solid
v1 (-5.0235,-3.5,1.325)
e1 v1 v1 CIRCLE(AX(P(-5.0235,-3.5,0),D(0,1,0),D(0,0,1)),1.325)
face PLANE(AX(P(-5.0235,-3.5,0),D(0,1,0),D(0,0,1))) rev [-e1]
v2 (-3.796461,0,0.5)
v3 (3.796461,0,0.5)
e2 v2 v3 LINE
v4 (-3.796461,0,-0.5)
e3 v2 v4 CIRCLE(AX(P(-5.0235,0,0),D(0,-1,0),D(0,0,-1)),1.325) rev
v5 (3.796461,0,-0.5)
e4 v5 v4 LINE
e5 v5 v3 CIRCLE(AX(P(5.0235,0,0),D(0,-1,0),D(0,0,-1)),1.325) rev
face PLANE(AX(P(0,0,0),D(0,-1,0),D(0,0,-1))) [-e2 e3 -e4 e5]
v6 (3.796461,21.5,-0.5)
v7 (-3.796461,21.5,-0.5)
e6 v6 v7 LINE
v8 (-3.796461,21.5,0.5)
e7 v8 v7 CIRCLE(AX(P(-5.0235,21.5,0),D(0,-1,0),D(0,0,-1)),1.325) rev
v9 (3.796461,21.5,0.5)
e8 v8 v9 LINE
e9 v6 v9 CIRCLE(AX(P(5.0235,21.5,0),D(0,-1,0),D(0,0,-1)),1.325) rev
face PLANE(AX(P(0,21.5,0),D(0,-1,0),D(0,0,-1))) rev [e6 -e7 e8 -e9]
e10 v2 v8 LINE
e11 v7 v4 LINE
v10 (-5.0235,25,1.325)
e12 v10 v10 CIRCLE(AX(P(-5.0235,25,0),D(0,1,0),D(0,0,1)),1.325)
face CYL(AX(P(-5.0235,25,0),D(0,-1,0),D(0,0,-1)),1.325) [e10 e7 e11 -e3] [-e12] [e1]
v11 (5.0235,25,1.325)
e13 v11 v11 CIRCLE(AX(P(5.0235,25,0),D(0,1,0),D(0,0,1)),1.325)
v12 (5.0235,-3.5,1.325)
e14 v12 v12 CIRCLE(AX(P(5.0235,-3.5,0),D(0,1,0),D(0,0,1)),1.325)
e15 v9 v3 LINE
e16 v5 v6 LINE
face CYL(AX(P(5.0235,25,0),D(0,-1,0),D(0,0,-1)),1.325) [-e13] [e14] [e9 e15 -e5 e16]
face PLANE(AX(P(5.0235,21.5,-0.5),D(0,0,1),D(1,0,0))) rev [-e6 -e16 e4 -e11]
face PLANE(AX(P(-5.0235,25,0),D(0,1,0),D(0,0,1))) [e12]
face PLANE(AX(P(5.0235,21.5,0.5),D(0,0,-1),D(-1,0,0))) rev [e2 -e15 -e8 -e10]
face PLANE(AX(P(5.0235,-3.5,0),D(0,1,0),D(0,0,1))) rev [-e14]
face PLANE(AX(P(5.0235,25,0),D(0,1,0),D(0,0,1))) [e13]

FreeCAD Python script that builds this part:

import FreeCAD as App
import Part
import Sketcher

doc = App.newDocument("Part")
params = doc.addObject("Spreadsheet::Sheet", "Params")
for row, (alias, value) in enumerate([
    ("sketch1_height", "1 mm"),
    ("pad1_length", "21.5 mm"),
    ("sketch2_diameter", "2.65 mm"),
    ("pad2_length", "28.5 mm"),
], start=1):
    params.set(f"A{row}", alias)
    params.set(f"B{row}", "=" + value)
    params.setAlias(f"B{row}", alias)

body = doc.addObject("PartDesign::Body", "Body")

# Sketch on XZ plane
sketch1 = body.newObject("Sketcher::SketchObject", "Sketch")
sketch1.AttachmentSupport = (doc.getObject("XZ_Plane"), [""])
sketch1.MapMode = "FlatFace"
sketch1.addGeometry([
    Part.LineSegment(App.Vector(-5, -0.5, 0), App.Vector(-5, 0.5, 0)),
    Part.LineSegment(App.Vector(-5, 0.5, 0), App.Vector(5, 0.5, 0)),
    Part.LineSegment(App.Vector(5, 0.5, 0), App.Vector(5, -0.5, 0)),
    Part.LineSegment(App.Vector(5, -0.5, 0), App.Vector(-5, -0.5, 0)),
], False)
sketch1.addConstraint([
    Sketcher.Constraint("Coincident", 0, 2, 1, 1),
    Sketcher.Constraint("Coincident", 1, 2, 2, 1),
    Sketcher.Constraint("Coincident", 2, 2, 3, 1),
    Sketcher.Constraint("Coincident", 3, 2, 0, 1),
    Sketcher.Constraint("Vertical", 0),
    Sketcher.Constraint("Horizontal", 1),
    Sketcher.Constraint("Vertical", 2),
    Sketcher.Constraint("Horizontal", 3),
    Sketcher.Constraint("Symmetric", 0, 2, 2, 2, -1, 1),
    Sketcher.Constraint("DistanceY", 0, 1, 0, 2, 1.0),
    Sketcher.Constraint("DistanceX", 1, 1, 1, 2, 10.047),
])
sketch1.setExpression("Constraints[9]", "Params.sketch1_height")
pad1 = body.newObject("PartDesign::Pad", "Pad")
pad1.Profile = sketch1
pad1.setExpression("Length", "Params.pad1_length")
pad1.Reversed = True

# Sketch on XZ plane
sketch2 = body.newObject("Sketcher::SketchObject", "Sketch001")
sketch2.AttachmentSupport = (doc.getObject("XZ_Plane"), [""])
sketch2.MapMode = "FlatFace"
sketch2.AttachmentOffset = App.Placement(App.Vector(0, 0, -10.75), App.Rotation())
sketch2.addGeometry([
    Part.Circle(App.Vector(-5, 0, 0), App.Vector(0, 0, 1), 1.3),
    Part.Circle(App.Vector(5, 0, 0), App.Vector(0, 0, 1), 1.3),
], False)
sketch2.addConstraint([
    Sketcher.Constraint("Equal", 0, 1),
    Sketcher.Constraint("Symmetric", 0, 3, 1, 3, -1, 1),
    Sketcher.Constraint("PointOnObject", 0, 3, -1),
    Sketcher.Constraint("Diameter", 0, 2.65),
    Sketcher.Constraint("DistanceX", 0, 3, 1, 3, 10.047),
])
sketch2.setExpression("Constraints[3]", "Params.sketch2_diameter")
pad2 = body.newObject("PartDesign::Pad", "Pad001")
pad2.Profile = sketch2
pad2.setExpression("Length", "Params.pad2_length")
pad2.Midplane = True

doc.recompute()
